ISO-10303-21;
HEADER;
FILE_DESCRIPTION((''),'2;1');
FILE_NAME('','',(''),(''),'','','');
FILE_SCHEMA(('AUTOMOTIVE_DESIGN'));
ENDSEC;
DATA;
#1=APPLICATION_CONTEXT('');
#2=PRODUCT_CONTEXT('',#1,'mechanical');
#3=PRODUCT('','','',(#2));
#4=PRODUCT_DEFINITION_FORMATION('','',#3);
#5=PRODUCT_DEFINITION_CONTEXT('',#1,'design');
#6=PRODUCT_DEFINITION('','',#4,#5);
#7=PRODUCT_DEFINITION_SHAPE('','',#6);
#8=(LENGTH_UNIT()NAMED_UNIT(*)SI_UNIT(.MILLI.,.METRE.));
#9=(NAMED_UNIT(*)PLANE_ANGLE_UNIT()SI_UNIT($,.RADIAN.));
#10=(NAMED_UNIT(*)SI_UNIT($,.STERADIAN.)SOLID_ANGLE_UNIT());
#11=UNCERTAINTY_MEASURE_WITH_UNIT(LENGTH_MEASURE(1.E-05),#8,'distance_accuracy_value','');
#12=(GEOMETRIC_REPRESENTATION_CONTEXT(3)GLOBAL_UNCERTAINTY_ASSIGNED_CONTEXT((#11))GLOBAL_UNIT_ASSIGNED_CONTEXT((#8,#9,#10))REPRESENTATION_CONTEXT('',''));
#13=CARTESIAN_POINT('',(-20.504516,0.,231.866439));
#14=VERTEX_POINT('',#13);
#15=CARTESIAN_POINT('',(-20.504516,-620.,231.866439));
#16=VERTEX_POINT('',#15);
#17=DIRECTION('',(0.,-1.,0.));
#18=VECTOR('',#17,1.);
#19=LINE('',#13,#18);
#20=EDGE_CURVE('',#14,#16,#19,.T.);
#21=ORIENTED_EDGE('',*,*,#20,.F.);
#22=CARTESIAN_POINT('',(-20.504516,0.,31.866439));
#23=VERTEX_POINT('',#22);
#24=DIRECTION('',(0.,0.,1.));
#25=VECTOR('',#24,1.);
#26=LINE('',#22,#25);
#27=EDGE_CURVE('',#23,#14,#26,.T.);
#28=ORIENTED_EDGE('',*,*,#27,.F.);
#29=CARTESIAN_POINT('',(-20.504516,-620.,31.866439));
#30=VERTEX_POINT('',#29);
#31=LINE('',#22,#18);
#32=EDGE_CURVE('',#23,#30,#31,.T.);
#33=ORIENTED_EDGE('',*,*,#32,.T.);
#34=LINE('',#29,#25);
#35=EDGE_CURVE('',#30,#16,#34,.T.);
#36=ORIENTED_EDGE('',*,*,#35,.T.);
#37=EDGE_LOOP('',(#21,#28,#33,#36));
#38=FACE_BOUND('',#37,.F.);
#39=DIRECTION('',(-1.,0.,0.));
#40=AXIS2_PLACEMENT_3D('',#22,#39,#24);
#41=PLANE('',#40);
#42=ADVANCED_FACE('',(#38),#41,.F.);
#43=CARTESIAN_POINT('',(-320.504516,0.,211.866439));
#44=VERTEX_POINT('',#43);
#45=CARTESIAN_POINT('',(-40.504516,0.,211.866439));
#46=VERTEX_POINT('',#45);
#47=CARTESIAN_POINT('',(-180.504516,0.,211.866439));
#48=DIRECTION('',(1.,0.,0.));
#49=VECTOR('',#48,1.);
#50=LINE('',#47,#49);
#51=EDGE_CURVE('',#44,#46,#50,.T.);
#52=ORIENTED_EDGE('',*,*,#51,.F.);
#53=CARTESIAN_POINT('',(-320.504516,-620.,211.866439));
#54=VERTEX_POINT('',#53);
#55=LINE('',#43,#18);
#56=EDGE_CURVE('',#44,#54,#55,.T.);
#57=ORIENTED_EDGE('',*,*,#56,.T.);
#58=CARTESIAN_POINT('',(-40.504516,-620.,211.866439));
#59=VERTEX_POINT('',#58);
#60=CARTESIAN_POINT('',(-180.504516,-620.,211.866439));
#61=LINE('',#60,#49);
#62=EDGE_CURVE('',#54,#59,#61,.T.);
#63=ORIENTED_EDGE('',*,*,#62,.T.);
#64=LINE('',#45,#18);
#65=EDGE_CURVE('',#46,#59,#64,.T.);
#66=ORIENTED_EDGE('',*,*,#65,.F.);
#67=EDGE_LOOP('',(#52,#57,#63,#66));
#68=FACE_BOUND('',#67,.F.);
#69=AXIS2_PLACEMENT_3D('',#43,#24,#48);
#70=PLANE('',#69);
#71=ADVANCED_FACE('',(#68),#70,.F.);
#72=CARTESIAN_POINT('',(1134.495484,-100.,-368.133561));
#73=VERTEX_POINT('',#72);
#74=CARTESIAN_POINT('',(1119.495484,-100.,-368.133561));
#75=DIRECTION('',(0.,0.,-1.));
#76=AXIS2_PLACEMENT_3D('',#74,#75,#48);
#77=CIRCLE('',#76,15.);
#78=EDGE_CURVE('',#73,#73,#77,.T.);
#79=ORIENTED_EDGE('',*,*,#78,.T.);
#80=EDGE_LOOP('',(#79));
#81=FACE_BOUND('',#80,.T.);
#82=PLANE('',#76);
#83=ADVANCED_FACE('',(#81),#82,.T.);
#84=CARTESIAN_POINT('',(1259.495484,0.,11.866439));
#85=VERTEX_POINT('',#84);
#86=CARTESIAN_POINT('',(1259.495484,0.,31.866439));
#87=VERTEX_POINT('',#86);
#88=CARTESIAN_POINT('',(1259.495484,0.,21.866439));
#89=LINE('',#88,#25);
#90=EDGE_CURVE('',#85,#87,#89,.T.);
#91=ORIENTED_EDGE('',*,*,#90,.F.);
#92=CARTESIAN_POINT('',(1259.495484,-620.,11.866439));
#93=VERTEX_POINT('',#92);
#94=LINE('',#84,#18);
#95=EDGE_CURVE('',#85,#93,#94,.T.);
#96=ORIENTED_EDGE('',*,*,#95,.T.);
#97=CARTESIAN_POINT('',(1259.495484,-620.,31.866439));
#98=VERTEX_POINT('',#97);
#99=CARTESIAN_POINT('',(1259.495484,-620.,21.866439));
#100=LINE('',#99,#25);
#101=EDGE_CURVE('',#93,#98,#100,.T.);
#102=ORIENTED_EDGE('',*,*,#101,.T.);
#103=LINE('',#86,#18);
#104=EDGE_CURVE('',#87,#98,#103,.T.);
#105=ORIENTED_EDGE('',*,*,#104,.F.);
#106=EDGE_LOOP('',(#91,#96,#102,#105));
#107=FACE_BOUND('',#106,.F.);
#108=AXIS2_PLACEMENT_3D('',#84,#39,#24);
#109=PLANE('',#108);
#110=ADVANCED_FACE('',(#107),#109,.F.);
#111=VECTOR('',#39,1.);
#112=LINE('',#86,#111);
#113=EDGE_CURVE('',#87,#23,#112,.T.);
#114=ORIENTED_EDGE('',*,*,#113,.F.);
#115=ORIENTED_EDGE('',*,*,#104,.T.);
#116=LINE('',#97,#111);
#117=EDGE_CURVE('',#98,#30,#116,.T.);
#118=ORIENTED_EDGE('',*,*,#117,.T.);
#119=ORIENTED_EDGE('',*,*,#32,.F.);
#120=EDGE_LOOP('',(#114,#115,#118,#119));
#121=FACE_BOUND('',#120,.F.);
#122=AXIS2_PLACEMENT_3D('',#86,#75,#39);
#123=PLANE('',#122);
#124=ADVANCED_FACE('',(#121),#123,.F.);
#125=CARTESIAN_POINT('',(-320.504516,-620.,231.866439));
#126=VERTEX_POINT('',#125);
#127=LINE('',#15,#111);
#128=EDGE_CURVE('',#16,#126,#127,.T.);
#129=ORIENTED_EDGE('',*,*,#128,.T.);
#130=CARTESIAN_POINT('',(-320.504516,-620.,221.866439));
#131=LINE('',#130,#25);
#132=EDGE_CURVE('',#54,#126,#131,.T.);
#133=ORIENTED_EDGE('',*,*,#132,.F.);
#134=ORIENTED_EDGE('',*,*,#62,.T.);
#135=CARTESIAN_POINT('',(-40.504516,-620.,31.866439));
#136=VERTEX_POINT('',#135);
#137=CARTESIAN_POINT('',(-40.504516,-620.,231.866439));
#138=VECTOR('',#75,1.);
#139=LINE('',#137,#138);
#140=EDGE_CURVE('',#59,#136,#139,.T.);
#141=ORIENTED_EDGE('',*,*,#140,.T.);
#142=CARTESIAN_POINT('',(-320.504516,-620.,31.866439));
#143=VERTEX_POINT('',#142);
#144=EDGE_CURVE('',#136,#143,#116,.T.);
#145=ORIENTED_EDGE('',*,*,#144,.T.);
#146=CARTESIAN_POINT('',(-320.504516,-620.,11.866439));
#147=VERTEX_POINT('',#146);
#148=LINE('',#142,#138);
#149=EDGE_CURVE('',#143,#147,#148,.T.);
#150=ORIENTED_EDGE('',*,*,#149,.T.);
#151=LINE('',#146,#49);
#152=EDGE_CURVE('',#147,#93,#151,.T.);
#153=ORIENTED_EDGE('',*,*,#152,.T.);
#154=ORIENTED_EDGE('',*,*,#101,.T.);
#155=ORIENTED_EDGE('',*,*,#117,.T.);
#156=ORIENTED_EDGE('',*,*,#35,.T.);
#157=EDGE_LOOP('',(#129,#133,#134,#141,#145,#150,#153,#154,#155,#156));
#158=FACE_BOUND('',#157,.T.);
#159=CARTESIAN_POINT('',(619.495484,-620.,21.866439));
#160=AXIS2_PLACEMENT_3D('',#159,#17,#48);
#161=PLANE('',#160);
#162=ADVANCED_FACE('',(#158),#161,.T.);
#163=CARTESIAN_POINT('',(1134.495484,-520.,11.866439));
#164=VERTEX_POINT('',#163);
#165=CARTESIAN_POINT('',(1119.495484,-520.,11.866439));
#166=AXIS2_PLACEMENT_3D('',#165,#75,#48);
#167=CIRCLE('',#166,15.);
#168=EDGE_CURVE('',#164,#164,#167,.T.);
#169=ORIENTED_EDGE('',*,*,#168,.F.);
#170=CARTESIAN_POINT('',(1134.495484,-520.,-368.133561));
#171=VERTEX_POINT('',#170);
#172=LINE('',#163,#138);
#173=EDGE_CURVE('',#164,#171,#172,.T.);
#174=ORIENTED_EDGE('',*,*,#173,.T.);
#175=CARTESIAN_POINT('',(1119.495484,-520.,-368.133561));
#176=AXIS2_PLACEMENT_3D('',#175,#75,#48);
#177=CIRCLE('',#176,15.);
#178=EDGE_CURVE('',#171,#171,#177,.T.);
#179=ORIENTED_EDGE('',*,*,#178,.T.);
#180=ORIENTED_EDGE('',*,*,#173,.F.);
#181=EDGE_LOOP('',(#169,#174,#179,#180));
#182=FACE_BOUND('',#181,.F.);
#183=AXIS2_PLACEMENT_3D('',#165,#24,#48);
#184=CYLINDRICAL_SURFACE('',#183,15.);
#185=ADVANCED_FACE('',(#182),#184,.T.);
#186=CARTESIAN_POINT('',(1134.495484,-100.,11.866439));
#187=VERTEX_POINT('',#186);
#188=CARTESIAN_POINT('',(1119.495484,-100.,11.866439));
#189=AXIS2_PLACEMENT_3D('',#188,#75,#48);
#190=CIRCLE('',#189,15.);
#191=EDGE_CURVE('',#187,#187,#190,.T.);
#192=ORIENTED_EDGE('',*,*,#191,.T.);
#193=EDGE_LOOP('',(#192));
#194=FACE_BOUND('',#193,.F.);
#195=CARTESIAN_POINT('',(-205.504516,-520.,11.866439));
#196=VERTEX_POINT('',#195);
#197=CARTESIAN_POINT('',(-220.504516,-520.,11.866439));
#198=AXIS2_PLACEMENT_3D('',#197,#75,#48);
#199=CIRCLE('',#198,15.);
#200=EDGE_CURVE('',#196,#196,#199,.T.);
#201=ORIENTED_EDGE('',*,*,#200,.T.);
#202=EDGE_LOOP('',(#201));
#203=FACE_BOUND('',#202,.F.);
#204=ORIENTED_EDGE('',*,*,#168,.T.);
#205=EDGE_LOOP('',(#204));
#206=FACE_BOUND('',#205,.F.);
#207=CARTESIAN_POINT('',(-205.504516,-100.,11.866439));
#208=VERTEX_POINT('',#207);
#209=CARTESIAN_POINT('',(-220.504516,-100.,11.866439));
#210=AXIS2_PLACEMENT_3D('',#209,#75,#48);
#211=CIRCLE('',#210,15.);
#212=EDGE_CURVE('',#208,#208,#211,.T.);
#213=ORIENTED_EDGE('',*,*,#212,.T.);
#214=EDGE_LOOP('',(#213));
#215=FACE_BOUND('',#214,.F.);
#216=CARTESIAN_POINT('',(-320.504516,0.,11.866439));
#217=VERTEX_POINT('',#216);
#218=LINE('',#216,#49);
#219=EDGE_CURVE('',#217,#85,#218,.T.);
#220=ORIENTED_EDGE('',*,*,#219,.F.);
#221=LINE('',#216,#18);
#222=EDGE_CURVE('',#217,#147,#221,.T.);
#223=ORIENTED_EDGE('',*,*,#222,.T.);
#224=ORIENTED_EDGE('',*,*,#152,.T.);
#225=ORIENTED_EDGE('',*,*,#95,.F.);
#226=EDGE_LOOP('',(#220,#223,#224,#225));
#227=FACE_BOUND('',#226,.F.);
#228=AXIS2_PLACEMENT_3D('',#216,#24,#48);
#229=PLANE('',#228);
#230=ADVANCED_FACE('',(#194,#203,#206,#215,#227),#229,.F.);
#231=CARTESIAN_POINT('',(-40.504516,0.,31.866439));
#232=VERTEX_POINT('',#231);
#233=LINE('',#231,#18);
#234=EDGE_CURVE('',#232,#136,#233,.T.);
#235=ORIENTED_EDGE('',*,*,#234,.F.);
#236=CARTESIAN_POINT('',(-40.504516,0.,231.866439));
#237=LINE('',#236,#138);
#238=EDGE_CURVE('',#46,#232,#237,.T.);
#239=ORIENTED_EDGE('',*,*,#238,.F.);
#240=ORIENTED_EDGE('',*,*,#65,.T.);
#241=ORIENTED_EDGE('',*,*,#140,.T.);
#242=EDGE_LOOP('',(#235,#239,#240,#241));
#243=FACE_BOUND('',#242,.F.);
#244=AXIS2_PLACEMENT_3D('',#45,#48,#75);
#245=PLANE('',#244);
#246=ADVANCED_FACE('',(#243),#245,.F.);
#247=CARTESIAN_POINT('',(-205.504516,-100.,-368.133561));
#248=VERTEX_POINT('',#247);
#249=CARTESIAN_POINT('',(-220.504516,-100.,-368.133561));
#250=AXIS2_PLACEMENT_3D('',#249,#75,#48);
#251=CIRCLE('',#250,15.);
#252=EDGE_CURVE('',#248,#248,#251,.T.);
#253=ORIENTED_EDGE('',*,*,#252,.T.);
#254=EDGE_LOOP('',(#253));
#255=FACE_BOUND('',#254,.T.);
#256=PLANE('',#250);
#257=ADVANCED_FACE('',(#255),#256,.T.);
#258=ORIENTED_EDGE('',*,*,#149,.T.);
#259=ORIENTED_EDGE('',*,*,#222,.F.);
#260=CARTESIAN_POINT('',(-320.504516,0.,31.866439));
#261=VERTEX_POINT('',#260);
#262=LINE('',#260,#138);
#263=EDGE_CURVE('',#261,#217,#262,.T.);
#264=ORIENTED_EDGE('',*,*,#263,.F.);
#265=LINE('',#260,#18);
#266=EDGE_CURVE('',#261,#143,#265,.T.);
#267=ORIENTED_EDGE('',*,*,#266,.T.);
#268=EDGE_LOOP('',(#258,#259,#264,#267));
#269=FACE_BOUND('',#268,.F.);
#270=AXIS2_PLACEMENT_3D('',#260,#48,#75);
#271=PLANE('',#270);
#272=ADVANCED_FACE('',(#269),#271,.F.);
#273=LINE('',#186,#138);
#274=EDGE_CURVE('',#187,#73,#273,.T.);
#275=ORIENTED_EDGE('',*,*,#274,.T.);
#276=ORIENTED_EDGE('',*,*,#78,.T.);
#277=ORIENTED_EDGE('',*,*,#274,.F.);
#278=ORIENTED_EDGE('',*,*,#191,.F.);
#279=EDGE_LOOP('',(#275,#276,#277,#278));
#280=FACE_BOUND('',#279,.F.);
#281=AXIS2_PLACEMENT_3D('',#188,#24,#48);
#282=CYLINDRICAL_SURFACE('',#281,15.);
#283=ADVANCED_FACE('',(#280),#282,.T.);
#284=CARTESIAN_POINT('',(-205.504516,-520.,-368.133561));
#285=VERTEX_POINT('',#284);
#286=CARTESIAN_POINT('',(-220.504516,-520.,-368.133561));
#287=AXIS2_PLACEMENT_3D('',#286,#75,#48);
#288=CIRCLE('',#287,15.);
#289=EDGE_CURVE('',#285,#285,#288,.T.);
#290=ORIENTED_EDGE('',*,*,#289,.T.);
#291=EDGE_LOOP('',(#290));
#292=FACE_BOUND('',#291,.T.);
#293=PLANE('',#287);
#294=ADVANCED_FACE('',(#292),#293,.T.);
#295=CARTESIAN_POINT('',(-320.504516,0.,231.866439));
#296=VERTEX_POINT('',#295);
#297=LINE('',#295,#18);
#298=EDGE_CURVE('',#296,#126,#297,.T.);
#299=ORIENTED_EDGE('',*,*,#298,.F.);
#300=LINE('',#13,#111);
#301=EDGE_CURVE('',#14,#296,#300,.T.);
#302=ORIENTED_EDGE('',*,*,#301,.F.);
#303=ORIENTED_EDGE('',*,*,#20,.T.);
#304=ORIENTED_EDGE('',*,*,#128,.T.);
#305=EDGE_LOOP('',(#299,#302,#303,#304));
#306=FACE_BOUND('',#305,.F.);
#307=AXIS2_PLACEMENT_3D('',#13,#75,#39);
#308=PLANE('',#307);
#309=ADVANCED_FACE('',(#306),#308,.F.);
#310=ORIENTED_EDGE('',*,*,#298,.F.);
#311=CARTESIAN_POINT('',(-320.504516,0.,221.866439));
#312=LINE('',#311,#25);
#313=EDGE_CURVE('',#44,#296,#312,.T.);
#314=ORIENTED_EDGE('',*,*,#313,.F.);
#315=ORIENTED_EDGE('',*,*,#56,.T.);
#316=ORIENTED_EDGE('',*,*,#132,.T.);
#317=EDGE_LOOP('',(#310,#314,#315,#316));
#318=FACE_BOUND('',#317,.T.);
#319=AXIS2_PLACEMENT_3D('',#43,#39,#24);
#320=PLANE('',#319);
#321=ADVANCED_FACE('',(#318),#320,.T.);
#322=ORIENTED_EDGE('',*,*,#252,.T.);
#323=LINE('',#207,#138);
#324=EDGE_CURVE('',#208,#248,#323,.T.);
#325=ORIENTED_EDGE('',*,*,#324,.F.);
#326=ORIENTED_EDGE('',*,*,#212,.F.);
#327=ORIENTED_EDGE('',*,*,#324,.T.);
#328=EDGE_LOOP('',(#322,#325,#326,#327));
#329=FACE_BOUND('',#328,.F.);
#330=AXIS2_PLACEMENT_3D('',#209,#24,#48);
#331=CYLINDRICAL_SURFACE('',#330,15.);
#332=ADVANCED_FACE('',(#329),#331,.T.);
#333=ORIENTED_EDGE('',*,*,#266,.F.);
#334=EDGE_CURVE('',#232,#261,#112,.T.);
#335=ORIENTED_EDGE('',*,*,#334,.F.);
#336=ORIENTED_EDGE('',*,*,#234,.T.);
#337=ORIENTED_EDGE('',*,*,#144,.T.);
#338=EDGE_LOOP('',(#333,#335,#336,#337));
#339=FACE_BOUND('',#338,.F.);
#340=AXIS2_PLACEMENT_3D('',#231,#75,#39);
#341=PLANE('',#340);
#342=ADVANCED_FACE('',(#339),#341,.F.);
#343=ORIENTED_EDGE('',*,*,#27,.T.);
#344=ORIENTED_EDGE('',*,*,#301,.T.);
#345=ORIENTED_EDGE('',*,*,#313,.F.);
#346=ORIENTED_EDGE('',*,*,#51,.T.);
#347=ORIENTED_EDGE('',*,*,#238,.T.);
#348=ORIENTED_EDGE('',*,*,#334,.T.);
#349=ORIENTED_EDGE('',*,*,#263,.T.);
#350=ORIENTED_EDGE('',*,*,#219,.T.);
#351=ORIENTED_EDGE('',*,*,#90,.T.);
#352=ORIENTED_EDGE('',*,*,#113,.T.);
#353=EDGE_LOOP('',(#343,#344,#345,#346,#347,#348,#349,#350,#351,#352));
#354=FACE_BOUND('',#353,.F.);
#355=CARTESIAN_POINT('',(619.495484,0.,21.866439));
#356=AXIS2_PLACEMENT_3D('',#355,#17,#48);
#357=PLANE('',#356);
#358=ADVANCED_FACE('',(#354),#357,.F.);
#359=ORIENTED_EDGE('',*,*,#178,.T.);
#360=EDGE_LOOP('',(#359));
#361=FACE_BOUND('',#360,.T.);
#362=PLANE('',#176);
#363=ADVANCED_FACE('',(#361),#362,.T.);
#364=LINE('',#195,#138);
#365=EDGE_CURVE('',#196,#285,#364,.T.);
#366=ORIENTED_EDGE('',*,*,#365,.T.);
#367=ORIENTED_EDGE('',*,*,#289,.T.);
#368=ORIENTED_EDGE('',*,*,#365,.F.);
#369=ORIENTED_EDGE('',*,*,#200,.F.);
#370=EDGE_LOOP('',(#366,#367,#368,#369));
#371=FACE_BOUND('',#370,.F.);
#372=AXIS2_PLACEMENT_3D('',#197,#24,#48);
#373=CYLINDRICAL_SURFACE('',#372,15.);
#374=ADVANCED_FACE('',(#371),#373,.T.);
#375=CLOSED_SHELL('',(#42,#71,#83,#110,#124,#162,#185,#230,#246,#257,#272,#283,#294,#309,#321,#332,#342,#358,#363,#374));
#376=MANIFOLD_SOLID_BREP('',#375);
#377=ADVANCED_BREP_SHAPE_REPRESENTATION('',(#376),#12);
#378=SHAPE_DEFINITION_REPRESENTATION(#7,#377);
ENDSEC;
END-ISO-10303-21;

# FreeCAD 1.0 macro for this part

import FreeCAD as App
import Part
import Sketcher

V = App.Vector


def add_polygon(sketch, points):
    """Adds a closed chain of lines whose ends are joined by coincident constraints."""
    first, n = sketch.GeometryCount, len(points)
    for a, b in zip(points, points[1:] + points[:1]):
        sketch.addGeometry(Part.LineSegment(App.Vector(*a, 0), App.Vector(*b, 0)), False)
    for i in range(n):
        sketch.addConstraint(Sketcher.Constraint("Coincident", first + i, 2, first + (i + 1) % n, 1))

doc = App.newDocument("Part")
body = doc.addObject("PartDesign::Body", "Body")

sketch1 = body.newObject("Sketcher::SketchObject", "Sketch")
sketch1.AttachmentSupport = (doc.getObject("XZ_Plane"), [""])
sketch1.MapMode = "FlatFace"
add_polygon(sketch1, [(1259.495484, 11.866439), (1259.495484, 31.866439), (-20.504516, 31.866439), (-20.504516, 231.866439), (-320.504516, 231.866439), (-320.504516, 211.866439), (-40.504516, 211.866439), (-40.504516, 31.866439), (-320.504516, 31.866439), (-320.504516, 11.866439)])
sketch1.addConstraint(Sketcher.Constraint("Vertical", 0))
sketch1.addConstraint(Sketcher.Constraint("Horizontal", 1))
sketch1.addConstraint(Sketcher.Constraint("Vertical", 2))
sketch1.addConstraint(Sketcher.Constraint("Horizontal", 3))
sketch1.addConstraint(Sketcher.Constraint("Vertical", 4))
sketch1.addConstraint(Sketcher.Constraint("Horizontal", 5))
sketch1.addConstraint(Sketcher.Constraint("Vertical", 6))
sketch1.addConstraint(Sketcher.Constraint("Horizontal", 7))
sketch1.addConstraint(Sketcher.Constraint("Vertical", 8))
sketch1.addConstraint(Sketcher.Constraint("Horizontal", 9))
sketch1.addConstraint(Sketcher.Constraint("Horizontal", 1, 2, 6, 2))
sketch1.addConstraint(Sketcher.Constraint("Vertical", 4, 2, 7, 2))
sketch1.addConstraint(Sketcher.Constraint("Equal", 0, 4))
sketch1.addConstraint(Sketcher.Constraint("DistanceX", 1, 2, 1, 1, 1280.0))
sketch1.addConstraint(Sketcher.Constraint("DistanceX", 3, 2, 3, 1, 300.0))
sketch1.addConstraint(Sketcher.Constraint("DistanceX", 5, 1, 5, 2, 280.0))
sketch1.addConstraint(Sketcher.Constraint("DistanceY", 0, 1, 0, 2, 20.0))
sketch1.addConstraint(Sketcher.Constraint("DistanceY", 2, 1, 2, 2, 200.0))
sketch1.addConstraint(Sketcher.Constraint("DistanceY", -1, 1, 0, 2, 31.866439))
sketch1.addConstraint(Sketcher.Constraint("DistanceX", -1, 1, 0, 2, 1259.495484))
pad1 = body.newObject("PartDesign::Pad", "Pad")
pad1.Profile = sketch1
pad1.Length = 620

sketch2 = body.newObject("Sketcher::SketchObject", "Sketch001")
sketch2.AttachmentSupport = (doc.getObject("XY_Plane"), [""])
sketch2.MapMode = "FlatFace"
sketch2.AttachmentOffset = App.Placement(V(0, 0, 11.866439), App.Rotation())
sketch2.addGeometry(Part.Circle(V(-220.504516, -520, 0), V(0, 0, 1), 15), False)
sketch2.addGeometry(Part.Circle(V(-220.504516, -100, 0), V(0, 0, 1), 15), False)
sketch2.addGeometry(Part.Circle(V(1119.495484, -100, 0), V(0, 0, 1), 15), False)
sketch2.addGeometry(Part.Circle(V(1119.495484, -520, 0), V(0, 0, 1), 15), False)
sketch2.addConstraint(Sketcher.Constraint("Equal", 0, 1))
sketch2.addConstraint(Sketcher.Constraint("Equal", 1, 2))
sketch2.addConstraint(Sketcher.Constraint("Equal", 2, 3))
sketch2.addConstraint(Sketcher.Constraint("Horizontal", 1, 3, 2, 3))
sketch2.addConstraint(Sketcher.Constraint("Horizontal", 0, 3, 3, 3))
sketch2.addConstraint(Sketcher.Constraint("Vertical", 0, 3, 1, 3))
sketch2.addConstraint(Sketcher.Constraint("Vertical", 2, 3, 3, 3))
sketch2.addConstraint(Sketcher.Constraint("Diameter", 0, 30.0))
sketch2.addConstraint(Sketcher.Constraint("DistanceY", 0, 3, -1, 1, 520.0))
sketch2.addConstraint(Sketcher.Constraint("DistanceY", 1, 3, -1, 1, 100.0))
sketch2.addConstraint(Sketcher.Constraint("DistanceX", 1, 3, 2, 3, 1340.0))
sketch2.addConstraint(Sketcher.Constraint("DistanceX", 0, 3, -1, 1, 220.504516))
pad2 = body.newObject("PartDesign::Pad", "Pad001")
pad2.Profile = sketch2
pad2.Length = 380
pad2.Reversed = True

doc.recompute()
